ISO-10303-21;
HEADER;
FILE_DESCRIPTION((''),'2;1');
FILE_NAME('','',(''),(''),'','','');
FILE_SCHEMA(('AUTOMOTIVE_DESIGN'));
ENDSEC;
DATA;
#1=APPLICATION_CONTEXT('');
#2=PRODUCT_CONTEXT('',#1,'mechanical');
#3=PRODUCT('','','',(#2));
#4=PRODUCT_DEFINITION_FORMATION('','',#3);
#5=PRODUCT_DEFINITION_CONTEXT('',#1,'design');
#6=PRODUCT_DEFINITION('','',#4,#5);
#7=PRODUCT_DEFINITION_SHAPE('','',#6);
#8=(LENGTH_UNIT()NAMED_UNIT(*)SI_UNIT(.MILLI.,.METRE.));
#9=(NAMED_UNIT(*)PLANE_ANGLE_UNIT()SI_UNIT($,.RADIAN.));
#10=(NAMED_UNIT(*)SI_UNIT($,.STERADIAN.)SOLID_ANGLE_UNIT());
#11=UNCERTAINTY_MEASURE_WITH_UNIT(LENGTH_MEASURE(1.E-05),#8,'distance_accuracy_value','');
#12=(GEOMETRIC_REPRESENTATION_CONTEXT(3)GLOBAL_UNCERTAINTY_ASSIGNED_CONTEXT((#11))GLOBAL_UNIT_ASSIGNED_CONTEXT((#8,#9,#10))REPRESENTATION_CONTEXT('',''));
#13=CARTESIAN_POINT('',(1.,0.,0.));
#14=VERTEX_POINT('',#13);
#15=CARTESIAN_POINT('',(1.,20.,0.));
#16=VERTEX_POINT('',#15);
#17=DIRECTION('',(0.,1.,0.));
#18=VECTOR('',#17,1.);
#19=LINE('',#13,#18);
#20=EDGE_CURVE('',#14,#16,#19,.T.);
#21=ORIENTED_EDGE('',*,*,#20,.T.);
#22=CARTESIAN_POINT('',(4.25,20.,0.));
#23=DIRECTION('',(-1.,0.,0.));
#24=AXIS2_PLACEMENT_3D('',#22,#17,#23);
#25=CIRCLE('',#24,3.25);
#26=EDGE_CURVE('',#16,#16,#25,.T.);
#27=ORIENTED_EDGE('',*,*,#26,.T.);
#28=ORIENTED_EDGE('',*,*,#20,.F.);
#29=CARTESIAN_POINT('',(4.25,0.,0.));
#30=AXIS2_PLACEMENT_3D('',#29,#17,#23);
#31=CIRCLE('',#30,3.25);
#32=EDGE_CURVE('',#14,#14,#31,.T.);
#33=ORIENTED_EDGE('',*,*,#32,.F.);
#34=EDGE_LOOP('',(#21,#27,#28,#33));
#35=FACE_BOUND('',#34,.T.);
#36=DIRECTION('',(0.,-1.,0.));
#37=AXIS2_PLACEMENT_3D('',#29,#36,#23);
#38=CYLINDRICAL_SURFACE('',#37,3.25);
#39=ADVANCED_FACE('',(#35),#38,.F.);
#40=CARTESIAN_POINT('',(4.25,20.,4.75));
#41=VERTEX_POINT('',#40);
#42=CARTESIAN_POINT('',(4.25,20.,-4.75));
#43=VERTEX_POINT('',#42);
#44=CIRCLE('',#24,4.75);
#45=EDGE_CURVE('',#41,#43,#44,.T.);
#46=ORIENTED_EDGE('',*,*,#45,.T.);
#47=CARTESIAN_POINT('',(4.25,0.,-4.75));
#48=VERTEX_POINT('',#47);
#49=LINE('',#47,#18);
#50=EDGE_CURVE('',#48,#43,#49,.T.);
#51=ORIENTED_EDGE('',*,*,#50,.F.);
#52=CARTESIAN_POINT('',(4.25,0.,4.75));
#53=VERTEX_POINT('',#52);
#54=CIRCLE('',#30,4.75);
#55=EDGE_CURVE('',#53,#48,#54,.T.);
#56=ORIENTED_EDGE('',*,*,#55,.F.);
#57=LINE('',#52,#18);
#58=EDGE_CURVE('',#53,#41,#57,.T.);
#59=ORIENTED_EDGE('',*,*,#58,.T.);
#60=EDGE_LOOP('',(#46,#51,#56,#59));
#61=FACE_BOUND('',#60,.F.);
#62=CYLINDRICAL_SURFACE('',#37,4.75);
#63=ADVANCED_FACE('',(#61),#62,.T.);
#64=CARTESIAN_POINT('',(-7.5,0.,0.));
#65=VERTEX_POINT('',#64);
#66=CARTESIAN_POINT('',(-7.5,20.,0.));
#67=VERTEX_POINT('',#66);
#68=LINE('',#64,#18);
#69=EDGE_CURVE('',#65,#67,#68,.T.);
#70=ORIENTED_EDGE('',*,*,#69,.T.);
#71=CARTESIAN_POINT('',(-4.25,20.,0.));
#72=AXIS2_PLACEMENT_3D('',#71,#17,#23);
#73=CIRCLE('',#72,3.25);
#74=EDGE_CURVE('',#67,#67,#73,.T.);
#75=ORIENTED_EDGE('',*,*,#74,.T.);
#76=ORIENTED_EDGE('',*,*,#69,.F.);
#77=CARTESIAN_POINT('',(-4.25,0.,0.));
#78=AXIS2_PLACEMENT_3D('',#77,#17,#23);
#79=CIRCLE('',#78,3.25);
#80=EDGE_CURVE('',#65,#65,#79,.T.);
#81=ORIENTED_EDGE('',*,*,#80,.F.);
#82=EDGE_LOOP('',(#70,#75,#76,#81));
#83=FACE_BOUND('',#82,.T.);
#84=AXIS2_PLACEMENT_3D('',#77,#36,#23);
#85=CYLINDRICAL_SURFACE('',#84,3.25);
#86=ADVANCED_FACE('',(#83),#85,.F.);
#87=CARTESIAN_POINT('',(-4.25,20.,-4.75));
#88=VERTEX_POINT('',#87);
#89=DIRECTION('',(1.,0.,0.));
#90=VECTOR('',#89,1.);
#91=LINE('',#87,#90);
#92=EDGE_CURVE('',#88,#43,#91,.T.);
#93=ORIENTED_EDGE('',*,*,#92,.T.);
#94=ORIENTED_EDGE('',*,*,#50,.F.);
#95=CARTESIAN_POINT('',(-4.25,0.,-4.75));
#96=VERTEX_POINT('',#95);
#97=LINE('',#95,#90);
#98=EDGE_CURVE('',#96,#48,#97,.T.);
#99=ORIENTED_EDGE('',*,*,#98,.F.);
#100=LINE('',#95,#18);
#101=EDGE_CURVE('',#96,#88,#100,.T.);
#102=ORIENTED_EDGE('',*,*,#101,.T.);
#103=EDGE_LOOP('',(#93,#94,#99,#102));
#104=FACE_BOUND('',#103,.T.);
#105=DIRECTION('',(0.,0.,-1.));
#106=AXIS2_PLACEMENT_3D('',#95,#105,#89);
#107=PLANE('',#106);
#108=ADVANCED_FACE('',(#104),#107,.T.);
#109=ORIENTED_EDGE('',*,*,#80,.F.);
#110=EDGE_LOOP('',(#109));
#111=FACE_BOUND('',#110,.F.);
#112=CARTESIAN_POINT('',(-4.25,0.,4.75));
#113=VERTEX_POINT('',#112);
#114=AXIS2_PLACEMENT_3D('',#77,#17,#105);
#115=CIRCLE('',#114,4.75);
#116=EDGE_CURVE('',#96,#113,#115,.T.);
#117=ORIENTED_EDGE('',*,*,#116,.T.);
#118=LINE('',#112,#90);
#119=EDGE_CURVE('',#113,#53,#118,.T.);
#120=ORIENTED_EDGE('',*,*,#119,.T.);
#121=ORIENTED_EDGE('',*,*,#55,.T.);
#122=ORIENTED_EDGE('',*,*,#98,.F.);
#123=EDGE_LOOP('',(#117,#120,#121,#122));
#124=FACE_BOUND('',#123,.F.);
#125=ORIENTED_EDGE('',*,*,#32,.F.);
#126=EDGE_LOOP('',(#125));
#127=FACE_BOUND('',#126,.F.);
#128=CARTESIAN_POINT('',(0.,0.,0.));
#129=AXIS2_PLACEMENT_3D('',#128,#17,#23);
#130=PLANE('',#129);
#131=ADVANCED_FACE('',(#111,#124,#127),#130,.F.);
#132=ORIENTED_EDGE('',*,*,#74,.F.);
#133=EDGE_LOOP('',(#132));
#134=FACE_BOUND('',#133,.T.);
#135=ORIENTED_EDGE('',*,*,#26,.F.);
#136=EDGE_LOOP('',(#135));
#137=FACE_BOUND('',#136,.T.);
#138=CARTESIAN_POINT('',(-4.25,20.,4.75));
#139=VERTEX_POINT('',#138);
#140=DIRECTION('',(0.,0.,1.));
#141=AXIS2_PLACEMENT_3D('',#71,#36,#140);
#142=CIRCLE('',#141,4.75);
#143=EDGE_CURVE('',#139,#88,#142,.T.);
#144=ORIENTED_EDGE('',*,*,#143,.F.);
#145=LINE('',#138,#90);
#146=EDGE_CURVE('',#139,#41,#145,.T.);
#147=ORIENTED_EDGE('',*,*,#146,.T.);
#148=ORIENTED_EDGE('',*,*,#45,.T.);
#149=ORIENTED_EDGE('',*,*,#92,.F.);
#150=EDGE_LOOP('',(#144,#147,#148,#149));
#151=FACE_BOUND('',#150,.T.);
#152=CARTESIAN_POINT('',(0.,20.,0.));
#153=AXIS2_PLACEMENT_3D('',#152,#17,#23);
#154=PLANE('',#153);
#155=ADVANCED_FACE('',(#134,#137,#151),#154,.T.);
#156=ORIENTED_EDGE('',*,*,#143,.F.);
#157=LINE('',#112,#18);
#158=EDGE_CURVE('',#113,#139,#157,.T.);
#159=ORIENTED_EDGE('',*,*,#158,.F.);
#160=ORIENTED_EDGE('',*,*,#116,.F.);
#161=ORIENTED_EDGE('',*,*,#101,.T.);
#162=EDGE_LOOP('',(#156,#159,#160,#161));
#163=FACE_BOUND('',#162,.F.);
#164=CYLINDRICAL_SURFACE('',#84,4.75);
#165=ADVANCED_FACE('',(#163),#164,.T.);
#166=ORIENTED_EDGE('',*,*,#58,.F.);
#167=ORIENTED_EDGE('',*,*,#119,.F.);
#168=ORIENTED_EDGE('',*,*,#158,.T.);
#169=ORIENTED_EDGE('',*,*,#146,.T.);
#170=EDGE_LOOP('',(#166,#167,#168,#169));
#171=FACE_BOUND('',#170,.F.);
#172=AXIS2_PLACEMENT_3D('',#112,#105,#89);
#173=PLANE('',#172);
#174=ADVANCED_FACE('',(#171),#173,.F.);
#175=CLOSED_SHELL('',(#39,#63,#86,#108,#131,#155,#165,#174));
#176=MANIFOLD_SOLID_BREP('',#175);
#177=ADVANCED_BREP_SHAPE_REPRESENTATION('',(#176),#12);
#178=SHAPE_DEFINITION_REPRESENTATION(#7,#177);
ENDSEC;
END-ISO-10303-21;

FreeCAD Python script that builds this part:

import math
import FreeCAD as App
import Part
import Sketcher

doc = App.newDocument("Part")
body = doc.addObject("PartDesign::Body", "Body")

sketch1 = body.newObject("Sketcher::SketchObject", "Sketch")
sketch1.AttachmentSupport = (doc.getObject("XZ_Plane"), [""])
sketch1.MapMode = "FlatFace"
sketch1.addGeometry([
    Part.ArcOfCircle(Part.Circle(App.Vector(-4.2, 0, 0), App.Vector(0, 0, 1), 4.8), math.radians(90), math.radians(270)),
    Part.LineSegment(App.Vector(-4.2, 4.8, 0), App.Vector(4.2, 4.8, 0)),
    Part.ArcOfCircle(Part.Circle(App.Vector(4.2, 0, 0), App.Vector(0, 0, 1), 4.8), math.radians(-90), math.radians(90)),
    Part.LineSegment(App.Vector(4.2, -4.8, 0), App.Vector(-4.2, -4.8, 0)),
    Part.Circle(App.Vector(-4.2, 0, 0), App.Vector(0, 0, 1), 3.2),
    Part.Circle(App.Vector(4.2, 0, 0), App.Vector(0, 0, 1), 3.2),
], False)
sketch1.addConstraint([
    Sketcher.Constraint("Tangent", 0, 1, 1, 1),
    Sketcher.Constraint("Tangent", 1, 2, 2, 2),
    Sketcher.Constraint("Tangent", 2, 1, 3, 1),
    Sketcher.Constraint("Tangent", 3, 2, 0, 2),
    Sketcher.Constraint("Horizontal", 1),
    Sketcher.Constraint("Horizontal", 3),
    Sketcher.Constraint("Coincident", 4, 3, 0, 3),
    Sketcher.Constraint("Coincident", 5, 3, 2, 3),
    Sketcher.Constraint("Equal", 4, 5),
    Sketcher.Constraint("Symmetric", 0, 3, 2, 3, -1, 1),
    Sketcher.Constraint("Diameter", 4, 6.5),
    Sketcher.Constraint("DistanceX", 1, 1, 1, 2, 8.5),
    Sketcher.Constraint("Radius", 0, 4.75),
])
pad1 = body.newObject("PartDesign::Pad", "Pad")
pad1.Profile = sketch1
pad1.Length = 20
pad1.Reversed = True

doc.recompute()
